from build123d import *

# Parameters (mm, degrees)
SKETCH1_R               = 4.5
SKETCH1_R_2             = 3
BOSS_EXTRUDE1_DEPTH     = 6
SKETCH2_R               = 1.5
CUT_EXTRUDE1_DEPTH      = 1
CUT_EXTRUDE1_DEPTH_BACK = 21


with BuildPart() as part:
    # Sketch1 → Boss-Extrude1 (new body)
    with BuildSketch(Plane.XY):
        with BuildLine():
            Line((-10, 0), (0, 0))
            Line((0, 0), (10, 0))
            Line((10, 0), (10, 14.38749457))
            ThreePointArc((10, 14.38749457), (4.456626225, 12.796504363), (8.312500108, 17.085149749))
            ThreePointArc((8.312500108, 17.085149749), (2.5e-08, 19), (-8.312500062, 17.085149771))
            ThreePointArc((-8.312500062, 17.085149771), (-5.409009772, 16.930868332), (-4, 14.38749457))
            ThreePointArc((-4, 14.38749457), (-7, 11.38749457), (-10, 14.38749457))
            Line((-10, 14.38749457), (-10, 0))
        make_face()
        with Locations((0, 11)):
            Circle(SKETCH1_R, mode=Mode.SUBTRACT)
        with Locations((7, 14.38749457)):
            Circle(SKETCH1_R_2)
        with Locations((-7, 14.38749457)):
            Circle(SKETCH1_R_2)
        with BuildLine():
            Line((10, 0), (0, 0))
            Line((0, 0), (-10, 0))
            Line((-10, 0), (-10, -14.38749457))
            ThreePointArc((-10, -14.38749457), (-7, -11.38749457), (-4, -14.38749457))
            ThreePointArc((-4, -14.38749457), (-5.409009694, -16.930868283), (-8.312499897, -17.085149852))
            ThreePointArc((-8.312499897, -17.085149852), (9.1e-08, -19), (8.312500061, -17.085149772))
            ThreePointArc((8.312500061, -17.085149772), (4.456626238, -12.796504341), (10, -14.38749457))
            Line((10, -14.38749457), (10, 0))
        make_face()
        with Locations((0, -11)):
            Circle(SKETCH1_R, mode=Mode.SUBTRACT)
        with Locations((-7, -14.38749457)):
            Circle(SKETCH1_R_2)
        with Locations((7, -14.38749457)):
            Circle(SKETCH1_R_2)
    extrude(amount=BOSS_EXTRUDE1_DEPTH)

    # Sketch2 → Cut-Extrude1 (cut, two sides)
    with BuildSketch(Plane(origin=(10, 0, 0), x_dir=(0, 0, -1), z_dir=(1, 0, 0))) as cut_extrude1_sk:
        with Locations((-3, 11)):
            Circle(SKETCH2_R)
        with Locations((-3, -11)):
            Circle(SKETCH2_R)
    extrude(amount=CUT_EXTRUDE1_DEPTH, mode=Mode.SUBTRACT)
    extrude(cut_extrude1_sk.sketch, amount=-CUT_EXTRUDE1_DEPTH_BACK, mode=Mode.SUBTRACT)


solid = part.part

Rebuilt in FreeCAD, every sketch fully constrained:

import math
import FreeCAD as App
import Part
import Sketcher

V = App.Vector
Q = App.Units.Quantity

doc = App.newDocument("Part")
body = doc.addObject("PartDesign::Body", "Body")

sketch1 = body.newObject("Sketcher::SketchObject", "Sketch")
sketch1.AttachmentSupport = (doc.getObject("XY_Plane"), [""])
sketch1.MapMode = "FlatFace"
sketch1.addGeometry([
    Part.ArcOfCircle(Part.Circle(V(7, 14.4, 0), V(0, 0, 1), 3), math.radians(0), math.radians(64)),
    Part.ArcOfCircle(Part.Circle(V(0, 0, 0), V(0, 0, 1), 19), math.radians(64), math.radians(116)),
    Part.ArcOfCircle(Part.Circle(V(-7, 14.4, 0), V(0, 0, 1), 3), math.radians(116), math.radians(180)),
    Part.LineSegment(V(-10, 14.4, 0), V(-10, -14.4, 0)),
    Part.ArcOfCircle(Part.Circle(V(-7, -14.4, 0), V(0, 0, 1), 3), math.radians(180), math.radians(244)),
    Part.ArcOfCircle(Part.Circle(V(0, 0, 0), V(0, 0, 1), 19), math.radians(-116), math.radians(-64)),
    Part.ArcOfCircle(Part.Circle(V(7, -14.4, 0), V(0, 0, 1), 3), math.radians(-64), math.radians(0)),
    Part.LineSegment(V(10, -14.4, 0), V(10, 14.4, 0)),
    Part.Circle(V(0, -11, 0), V(0, 0, 1), 4.5),
    Part.Circle(V(0, 11, 0), V(0, 0, 1), 4.5),
], False)
sketch1.addConstraint([
    Sketcher.Constraint("Tangent", 0, 2, 1, 1),
    Sketcher.Constraint("Tangent", 1, 2, 2, 1),
    Sketcher.Constraint("Tangent", 2, 2, 3, 1),
    Sketcher.Constraint("Tangent", 3, 2, 4, 1),
    Sketcher.Constraint("Tangent", 4, 2, 5, 1),
    Sketcher.Constraint("Tangent", 5, 2, 6, 1),
    Sketcher.Constraint("Tangent", 6, 2, 7, 1),
    Sketcher.Constraint("Tangent", 7, 2, 0, 1),
    Sketcher.Constraint("Vertical", 3),
    Sketcher.Constraint("Vertical", 7),
    Sketcher.Constraint("Coincident", 1, 3, -1, 1),
    Sketcher.Constraint("Coincident", 5, 3, -1, 1),
    Sketcher.Constraint("Equal", 0, 2),
    Sketcher.Constraint("Equal", 2, 4),
    Sketcher.Constraint("Equal", 1, 5),
    Sketcher.Constraint("Equal", 4, 6),
    Sketcher.Constraint("Equal", 8, 9),
    Sketcher.Constraint("Symmetric", 8, 3, 9, 3, -1, 1),
    Sketcher.Constraint("PointOnObject", 8, 3, -2),
    Sketcher.Constraint("Horizontal", 0, 3, 2, 3),
    Sketcher.Constraint("Diameter", 8, Q("9 mm")),
    Sketcher.Constraint("Radius", 0, Q("3 mm")),
    Sketcher.Constraint("Radius", 1, Q("19 mm")),
    Sketcher.Constraint("DistanceX", -1, 1, 0, 3, Q("7 mm")),
    Sketcher.Constraint("DistanceY", 8, 3, -1, 1, Q("11 mm")),
])
pad1 = body.newObject("PartDesign::Pad", "Pad")
pad1.Profile = sketch1
pad1.Length = 6

sketch2 = body.newObject("Sketcher::SketchObject", "Sketch001")
sketch2.AttachmentSupport = (doc.getObject("YZ_Plane"), [""])
sketch2.MapMode = "FlatFace"
sketch2.AttachmentOffset = App.Placement(V(0, 0, 10), App.Rotation())
sketch2.addGeometry([
    Part.Circle(V(11, 3, 0), V(0, 0, 1), 1.5),
    Part.Circle(V(-11, 3, 0), V(0, 0, 1), 1.5),
], False)
sketch2.addConstraint([
    Sketcher.Constraint("Equal", 0, 1),
    Sketcher.Constraint("Symmetric", 0, 3, 1, 3, -2),
    Sketcher.Constraint("Diameter", 0, Q("3 mm")),
    Sketcher.Constraint("DistanceX", -1, 1, 0, 3, Q("11 mm")),
    Sketcher.Constraint("DistanceY", -1, 1, 0, 3, Q("3 mm")),
])
pocket1 = body.newObject("PartDesign::Pocket", "Pocket")
pocket1.Profile = sketch2
pocket1.Type = "ThroughAll"
pocket1.Midplane = True

doc.recompute()
